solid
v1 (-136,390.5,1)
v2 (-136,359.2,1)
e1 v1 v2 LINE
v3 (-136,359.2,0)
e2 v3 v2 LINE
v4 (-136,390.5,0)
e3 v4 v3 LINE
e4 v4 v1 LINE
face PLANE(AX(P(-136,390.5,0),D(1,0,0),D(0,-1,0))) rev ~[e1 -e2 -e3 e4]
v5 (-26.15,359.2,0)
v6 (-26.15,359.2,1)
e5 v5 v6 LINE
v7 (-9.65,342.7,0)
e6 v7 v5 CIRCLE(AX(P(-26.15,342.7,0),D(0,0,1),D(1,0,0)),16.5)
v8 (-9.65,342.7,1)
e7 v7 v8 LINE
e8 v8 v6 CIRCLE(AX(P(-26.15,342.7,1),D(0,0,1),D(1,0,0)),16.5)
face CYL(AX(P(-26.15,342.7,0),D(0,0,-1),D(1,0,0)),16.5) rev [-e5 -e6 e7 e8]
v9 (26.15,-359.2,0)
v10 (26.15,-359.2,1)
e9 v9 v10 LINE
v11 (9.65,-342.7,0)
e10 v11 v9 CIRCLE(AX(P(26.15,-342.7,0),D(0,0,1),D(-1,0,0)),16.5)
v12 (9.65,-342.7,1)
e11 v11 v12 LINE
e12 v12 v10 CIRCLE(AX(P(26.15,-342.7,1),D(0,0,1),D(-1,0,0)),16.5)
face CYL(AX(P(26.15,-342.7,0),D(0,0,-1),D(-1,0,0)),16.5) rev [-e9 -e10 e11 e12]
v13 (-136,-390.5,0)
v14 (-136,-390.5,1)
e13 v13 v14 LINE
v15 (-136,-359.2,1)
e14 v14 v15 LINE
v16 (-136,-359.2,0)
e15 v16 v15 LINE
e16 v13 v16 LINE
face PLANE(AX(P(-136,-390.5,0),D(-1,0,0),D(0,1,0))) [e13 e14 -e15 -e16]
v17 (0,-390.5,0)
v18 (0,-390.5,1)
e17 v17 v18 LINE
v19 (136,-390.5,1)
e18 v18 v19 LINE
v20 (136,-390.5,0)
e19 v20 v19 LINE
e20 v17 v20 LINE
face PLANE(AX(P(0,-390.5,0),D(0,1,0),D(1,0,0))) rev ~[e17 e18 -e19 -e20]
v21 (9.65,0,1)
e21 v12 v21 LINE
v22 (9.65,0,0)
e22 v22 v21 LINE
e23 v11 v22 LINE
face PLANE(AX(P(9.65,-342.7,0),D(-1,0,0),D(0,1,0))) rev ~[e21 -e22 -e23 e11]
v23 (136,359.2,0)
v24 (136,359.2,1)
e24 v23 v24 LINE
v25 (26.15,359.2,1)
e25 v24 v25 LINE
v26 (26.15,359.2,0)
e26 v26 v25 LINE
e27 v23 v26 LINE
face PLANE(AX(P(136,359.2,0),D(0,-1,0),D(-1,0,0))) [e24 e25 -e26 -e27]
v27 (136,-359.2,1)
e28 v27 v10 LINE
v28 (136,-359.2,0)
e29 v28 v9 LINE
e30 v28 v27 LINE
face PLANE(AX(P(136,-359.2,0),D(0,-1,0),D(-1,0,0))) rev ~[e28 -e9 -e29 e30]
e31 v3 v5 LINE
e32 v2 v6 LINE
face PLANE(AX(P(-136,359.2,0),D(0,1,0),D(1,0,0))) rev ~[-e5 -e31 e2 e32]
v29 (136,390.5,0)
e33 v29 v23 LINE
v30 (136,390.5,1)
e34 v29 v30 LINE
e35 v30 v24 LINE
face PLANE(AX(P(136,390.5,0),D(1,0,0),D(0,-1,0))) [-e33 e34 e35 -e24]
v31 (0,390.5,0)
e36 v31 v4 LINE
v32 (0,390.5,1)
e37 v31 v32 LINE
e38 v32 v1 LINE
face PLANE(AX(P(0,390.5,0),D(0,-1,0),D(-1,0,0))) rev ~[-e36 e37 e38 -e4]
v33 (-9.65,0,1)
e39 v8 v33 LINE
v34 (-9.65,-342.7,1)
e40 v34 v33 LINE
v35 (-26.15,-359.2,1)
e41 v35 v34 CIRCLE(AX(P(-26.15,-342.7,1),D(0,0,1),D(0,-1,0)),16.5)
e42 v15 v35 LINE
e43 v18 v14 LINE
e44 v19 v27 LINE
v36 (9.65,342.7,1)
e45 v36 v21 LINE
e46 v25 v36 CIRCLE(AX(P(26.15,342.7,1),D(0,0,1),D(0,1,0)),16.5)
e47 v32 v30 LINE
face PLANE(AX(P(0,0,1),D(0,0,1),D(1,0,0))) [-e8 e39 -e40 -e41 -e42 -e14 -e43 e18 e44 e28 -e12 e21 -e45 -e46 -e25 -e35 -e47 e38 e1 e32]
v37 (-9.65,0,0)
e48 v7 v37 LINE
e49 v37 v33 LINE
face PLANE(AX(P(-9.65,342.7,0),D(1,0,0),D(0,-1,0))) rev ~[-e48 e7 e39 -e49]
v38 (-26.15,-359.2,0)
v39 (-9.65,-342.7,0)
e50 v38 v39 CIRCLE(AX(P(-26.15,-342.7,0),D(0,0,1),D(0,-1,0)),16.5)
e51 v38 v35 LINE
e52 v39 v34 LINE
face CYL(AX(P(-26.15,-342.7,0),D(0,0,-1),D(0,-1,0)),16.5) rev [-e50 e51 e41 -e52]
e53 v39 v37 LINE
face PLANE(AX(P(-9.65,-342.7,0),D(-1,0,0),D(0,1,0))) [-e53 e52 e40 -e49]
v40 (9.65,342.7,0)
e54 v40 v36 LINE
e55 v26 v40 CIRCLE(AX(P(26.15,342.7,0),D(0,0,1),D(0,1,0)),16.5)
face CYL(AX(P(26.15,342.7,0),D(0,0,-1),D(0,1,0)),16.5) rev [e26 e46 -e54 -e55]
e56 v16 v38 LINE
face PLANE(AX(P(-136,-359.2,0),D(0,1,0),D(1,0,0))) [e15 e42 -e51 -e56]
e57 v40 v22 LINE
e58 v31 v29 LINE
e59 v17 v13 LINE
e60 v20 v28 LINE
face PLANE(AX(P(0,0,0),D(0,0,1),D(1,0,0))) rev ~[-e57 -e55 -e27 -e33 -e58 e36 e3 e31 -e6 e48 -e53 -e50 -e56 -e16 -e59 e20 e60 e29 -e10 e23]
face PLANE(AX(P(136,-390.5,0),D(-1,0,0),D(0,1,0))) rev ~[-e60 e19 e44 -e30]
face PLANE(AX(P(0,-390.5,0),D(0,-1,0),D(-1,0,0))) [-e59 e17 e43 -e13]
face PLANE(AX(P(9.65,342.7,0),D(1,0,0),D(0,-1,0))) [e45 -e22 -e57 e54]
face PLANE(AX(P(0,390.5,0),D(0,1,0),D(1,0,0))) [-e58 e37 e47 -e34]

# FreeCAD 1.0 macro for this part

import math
import FreeCAD as App
import Part
import Sketcher

doc = App.newDocument("Part")
body = doc.addObject("PartDesign::Body", "Body")

sketch1 = doc.addObject("Sketcher::SketchObject", "Sketch")
body.addObject(sketch1)
sketch1.AttachmentSupport = (doc.XY_Plane, [""])
sketch1.MapMode = "FlatFace"
sketch1.addGeometry(Part.LineSegment(App.Vector(-136, -359, 0), App.Vector(-136, -390, 0)), False)
sketch1.addGeometry(Part.LineSegment(App.Vector(-136, -390, 0), App.Vector(136, -390, 0)), False)
sketch1.addGeometry(Part.LineSegment(App.Vector(136, -390, 0), App.Vector(136, -359, 0)), False)
sketch1.addGeometry(Part.LineSegment(App.Vector(136, -359, 0), App.Vector(26, -359, 0)), False)
sketch1.addGeometry(Part.ArcOfCircle(Part.Circle(App.Vector(26, -343, 0), App.Vector(0, 0, 1), 16), math.radians(180), math.radians(270)), False)
sketch1.addGeometry(Part.LineSegment(App.Vector(10, -343, 0), App.Vector(10, 343, 0)), False)
sketch1.addGeometry(Part.ArcOfCircle(Part.Circle(App.Vector(26, 343, 0), App.Vector(0, 0, 1), 16), math.radians(90), math.radians(180)), False)
sketch1.addGeometry(Part.LineSegment(App.Vector(26, 359, 0), App.Vector(136, 359, 0)), False)
sketch1.addGeometry(Part.LineSegment(App.Vector(136, 359, 0), App.Vector(136, 390, 0)), False)
sketch1.addGeometry(Part.LineSegment(App.Vector(136, 390, 0), App.Vector(-136, 390, 0)), False)
sketch1.addGeometry(Part.LineSegment(App.Vector(-136, 390, 0), App.Vector(-136, 359, 0)), False)
sketch1.addGeometry(Part.LineSegment(App.Vector(-136, 359, 0), App.Vector(-26, 359, 0)), False)
sketch1.addGeometry(Part.ArcOfCircle(Part.Circle(App.Vector(-26, 343, 0), App.Vector(0, 0, 1), 16), math.radians(0), math.radians(90)), False)
sketch1.addGeometry(Part.LineSegment(App.Vector(-10, 343, 0), App.Vector(-10, -343, 0)), False)
sketch1.addGeometry(Part.ArcOfCircle(Part.Circle(App.Vector(-26, -343, 0), App.Vector(0, 0, 1), 16), math.radians(-90), math.radians(0)), False)
sketch1.addGeometry(Part.LineSegment(App.Vector(-26, -359, 0), App.Vector(-136, -359, 0)), False)
sketch1.addConstraint(Sketcher.Constraint("Coincident", 0, 2, 1, 1))
sketch1.addConstraint(Sketcher.Constraint("Coincident", 1, 2, 2, 1))
sketch1.addConstraint(Sketcher.Constraint("Coincident", 2, 2, 3, 1))
sketch1.addConstraint(Sketcher.Constraint("Tangent", 3, 2, 4, 2))
sketch1.addConstraint(Sketcher.Constraint("Tangent", 4, 1, 5, 1))
sketch1.addConstraint(Sketcher.Constraint("Tangent", 5, 2, 6, 2))
sketch1.addConstraint(Sketcher.Constraint("Tangent", 6, 1, 7, 1))
sketch1.addConstraint(Sketcher.Constraint("Coincident", 7, 2, 8, 1))
sketch1.addConstraint(Sketcher.Constraint("Coincident", 8, 2, 9, 1))
sketch1.addConstraint(Sketcher.Constraint("Coincident", 9, 2, 10, 1))
sketch1.addConstraint(Sketcher.Constraint("Coincident", 10, 2, 11, 1))
sketch1.addConstraint(Sketcher.Constraint("Tangent", 11, 2, 12, 2))
sketch1.addConstraint(Sketcher.Constraint("Tangent", 12, 1, 13, 1))
sketch1.addConstraint(Sketcher.Constraint("Tangent", 13, 2, 14, 2))
sketch1.addConstraint(Sketcher.Constraint("Tangent", 14, 1, 15, 1))
sketch1.addConstraint(Sketcher.Constraint("Coincident", 15, 2, 0, 1))
sketch1.addConstraint(Sketcher.Constraint("Vertical", 0))
sketch1.addConstraint(Sketcher.Constraint("Horizontal", 1))
sketch1.addConstraint(Sketcher.Constraint("Vertical", 2))
sketch1.addConstraint(Sketcher.Constraint("Horizontal", 3))
sketch1.addConstraint(Sketcher.Constraint("Vertical", 5))
sketch1.addConstraint(Sketcher.Constraint("Horizontal", 7))
sketch1.addConstraint(Sketcher.Constraint("Vertical", 8))
sketch1.addConstraint(Sketcher.Constraint("Horizontal", 9))
sketch1.addConstraint(Sketcher.Constraint("Vertical", 10))
sketch1.addConstraint(Sketcher.Constraint("Horizontal", 11))
sketch1.addConstraint(Sketcher.Constraint("Vertical", 13))
sketch1.addConstraint(Sketcher.Constraint("Horizontal", 15))
sketch1.addConstraint(Sketcher.Constraint("Equal", 4, 6))
sketch1.addConstraint(Sketcher.Constraint("Equal", 6, 12))
sketch1.addConstraint(Sketcher.Constraint("Equal", 12, 14))
sketch1.addConstraint(Sketcher.Constraint("Symmetric", 4, 3, 12, 3, -1, 1))
sketch1.addConstraint(Sketcher.Constraint("Symmetric", 0, 2, 8, 2, -1, 1))
sketch1.addConstraint(Sketcher.Constraint("Symmetric", 7, 2, 10, 2, -2))
sketch1.addConstraint(Sketcher.Constraint("Symmetric", 2, 2, 15, 2, -2))
sketch1.addConstraint(Sketcher.Constraint("Radius", 4, 16.5))
sketch1.addConstraint(Sketcher.Constraint("DistanceY", 0, 2, 0, 1, 31.3))
sketch1.addConstraint(Sketcher.Constraint("DistanceX", 0, 2, -1, 1, 136.0))
sketch1.addConstraint(Sketcher.Constraint("DistanceY", 0, 2, -1, 1, 390.5))
sketch1.addConstraint(Sketcher.Constraint("DistanceX", -1, 1, 4, 1, 9.65))
pad1 = doc.addObject("PartDesign::Pad", "Pad")
body.addObject(pad1)
pad1.Profile = sketch1
pad1.Length = 1

doc.recompute()
